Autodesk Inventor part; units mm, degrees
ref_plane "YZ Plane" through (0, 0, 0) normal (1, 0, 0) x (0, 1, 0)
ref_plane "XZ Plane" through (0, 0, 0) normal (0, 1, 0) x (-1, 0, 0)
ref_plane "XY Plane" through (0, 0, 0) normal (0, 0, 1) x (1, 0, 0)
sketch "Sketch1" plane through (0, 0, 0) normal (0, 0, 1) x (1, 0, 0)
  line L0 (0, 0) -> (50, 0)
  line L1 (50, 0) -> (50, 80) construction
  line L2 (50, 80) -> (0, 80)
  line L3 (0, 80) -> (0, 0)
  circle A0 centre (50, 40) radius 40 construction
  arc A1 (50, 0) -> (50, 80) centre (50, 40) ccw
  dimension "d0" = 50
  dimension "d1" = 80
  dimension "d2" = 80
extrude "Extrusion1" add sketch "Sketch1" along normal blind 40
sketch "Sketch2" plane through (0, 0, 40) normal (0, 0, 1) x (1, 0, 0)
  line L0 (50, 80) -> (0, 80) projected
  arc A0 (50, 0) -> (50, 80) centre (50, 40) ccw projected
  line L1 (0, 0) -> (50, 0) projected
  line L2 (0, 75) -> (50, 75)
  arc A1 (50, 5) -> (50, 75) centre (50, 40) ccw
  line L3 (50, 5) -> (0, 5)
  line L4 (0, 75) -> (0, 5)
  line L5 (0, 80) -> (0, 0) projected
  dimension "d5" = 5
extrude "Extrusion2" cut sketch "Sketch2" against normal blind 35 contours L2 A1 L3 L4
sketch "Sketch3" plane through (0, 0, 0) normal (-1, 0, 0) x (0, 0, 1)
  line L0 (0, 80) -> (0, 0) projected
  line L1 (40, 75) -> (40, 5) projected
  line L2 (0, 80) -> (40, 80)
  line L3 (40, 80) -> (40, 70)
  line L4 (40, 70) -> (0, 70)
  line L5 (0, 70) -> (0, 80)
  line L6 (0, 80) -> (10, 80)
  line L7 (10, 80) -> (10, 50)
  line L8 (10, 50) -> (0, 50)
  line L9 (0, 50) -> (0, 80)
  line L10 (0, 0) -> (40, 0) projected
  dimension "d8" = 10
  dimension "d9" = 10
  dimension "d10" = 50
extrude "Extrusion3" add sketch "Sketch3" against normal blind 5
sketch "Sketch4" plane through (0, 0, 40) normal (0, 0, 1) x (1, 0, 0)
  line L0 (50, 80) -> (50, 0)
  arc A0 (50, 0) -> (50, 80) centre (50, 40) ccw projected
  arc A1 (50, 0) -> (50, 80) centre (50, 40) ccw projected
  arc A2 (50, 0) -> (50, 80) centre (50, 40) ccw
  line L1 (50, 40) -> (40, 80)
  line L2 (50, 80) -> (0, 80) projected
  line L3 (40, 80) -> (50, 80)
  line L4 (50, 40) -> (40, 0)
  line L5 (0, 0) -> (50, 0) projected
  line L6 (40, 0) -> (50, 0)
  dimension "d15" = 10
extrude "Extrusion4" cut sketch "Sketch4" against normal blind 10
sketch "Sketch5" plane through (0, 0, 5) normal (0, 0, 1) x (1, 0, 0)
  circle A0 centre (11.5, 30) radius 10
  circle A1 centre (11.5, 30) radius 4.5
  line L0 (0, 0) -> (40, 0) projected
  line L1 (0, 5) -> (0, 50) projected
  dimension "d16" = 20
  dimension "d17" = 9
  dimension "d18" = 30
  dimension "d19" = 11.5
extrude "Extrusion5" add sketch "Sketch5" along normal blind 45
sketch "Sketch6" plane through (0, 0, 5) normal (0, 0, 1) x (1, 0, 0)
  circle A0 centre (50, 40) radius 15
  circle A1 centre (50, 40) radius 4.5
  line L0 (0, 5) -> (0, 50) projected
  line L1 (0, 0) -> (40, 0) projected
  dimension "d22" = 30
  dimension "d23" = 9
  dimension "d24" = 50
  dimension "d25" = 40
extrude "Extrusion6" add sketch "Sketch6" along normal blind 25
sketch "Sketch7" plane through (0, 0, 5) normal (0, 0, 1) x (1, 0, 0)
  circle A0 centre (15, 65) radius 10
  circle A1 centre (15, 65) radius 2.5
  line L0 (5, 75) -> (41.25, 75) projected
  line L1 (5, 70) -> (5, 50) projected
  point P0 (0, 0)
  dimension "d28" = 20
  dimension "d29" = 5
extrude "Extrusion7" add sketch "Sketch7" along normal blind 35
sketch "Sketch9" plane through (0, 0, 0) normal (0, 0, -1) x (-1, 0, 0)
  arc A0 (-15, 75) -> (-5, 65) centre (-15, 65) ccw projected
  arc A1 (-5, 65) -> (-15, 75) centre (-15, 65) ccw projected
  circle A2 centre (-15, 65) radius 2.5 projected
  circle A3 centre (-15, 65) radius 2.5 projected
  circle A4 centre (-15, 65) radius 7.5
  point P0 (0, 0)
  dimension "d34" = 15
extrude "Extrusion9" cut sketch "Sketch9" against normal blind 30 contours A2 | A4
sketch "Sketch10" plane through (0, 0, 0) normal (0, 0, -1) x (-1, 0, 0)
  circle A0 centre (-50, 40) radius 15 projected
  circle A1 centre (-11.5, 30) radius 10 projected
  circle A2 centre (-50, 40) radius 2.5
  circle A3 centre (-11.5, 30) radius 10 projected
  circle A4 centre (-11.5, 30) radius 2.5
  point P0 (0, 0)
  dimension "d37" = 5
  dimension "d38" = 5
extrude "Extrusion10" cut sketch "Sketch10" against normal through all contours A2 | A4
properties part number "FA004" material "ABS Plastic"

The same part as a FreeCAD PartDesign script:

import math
import FreeCAD as App
import Part
import Sketcher
Q = App.Units.Quantity

doc = App.newDocument("Part")
body = doc.addObject("PartDesign::Body", "Body")

# Sketch on XY plane
sketch1 = body.newObject("Sketcher::SketchObject", "Sketch")
sketch1.AttachmentSupport = (doc.getObject("XY_Plane"), [""])
sketch1.MapMode = "FlatFace"
sketch1.addGeometry([
    Part.LineSegment(App.Vector(0, 80, 0), App.Vector(0, 0, 0)),
    Part.LineSegment(App.Vector(0, 0, 0), App.Vector(50, 0, 0)),
    Part.ArcOfCircle(Part.Circle(App.Vector(50, 40, 0), App.Vector(0, 0, 1), 40), math.radians(-90), math.radians(90)),
    Part.LineSegment(App.Vector(50, 80, 0), App.Vector(0, 80, 0)),
], False)
sketch1.addConstraint([
    Sketcher.Constraint("Coincident", 0, 2, 1, 1),
    Sketcher.Constraint("Tangent", 1, 2, 2, 1),
    Sketcher.Constraint("Tangent", 2, 2, 3, 1),
    Sketcher.Constraint("Coincident", 3, 2, 0, 1),
    Sketcher.Constraint("Vertical", 0),
    Sketcher.Constraint("Horizontal", 1),
    Sketcher.Constraint("Horizontal", 3),
    Sketcher.Constraint("Coincident", 0, 2, -1, 1),
    Sketcher.Constraint("Radius", 2, Q("40 mm")),
    Sketcher.Constraint("DistanceX", 1, 1, 1, 2, Q("50 mm")),
])
pad1 = body.newObject("PartDesign::Pad", "Pad")
pad1.Profile = sketch1
pad1.Length = 40

# Sketch on XY plane
sketch2 = body.newObject("Sketcher::SketchObject", "Sketch001")
sketch2.AttachmentSupport = (doc.getObject("XY_Plane"), [""])
sketch2.MapMode = "FlatFace"
sketch2.AttachmentOffset = App.Placement(App.Vector(0, 0, 40), App.Rotation())
sketch2.addGeometry([
    Part.LineSegment(App.Vector(50, 75, 0), App.Vector(0, 75, 0)),
    Part.LineSegment(App.Vector(0, 75, 0), App.Vector(0, 5, 0)),
    Part.LineSegment(App.Vector(0, 5, 0), App.Vector(50, 5, 0)),
    Part.ArcOfCircle(Part.Circle(App.Vector(50, 40, 0), App.Vector(0, 0, 1), 35), math.radians(-90), math.radians(90)),
], False)
sketch2.addConstraint([
    Sketcher.Constraint("Coincident", 0, 2, 1, 1),
    Sketcher.Constraint("Coincident", 1, 2, 2, 1),
    Sketcher.Constraint("Tangent", 2, 2, 3, 1),
    Sketcher.Constraint("Tangent", 3, 2, 0, 1),
    Sketcher.Constraint("Horizontal", 0),
    Sketcher.Constraint("Vertical", 1),
    Sketcher.Constraint("Horizontal", 2),
    Sketcher.Constraint("PointOnObject", 0, 2, -2),
    Sketcher.Constraint("DistanceY", -1, 1, 1, 2, Q("5 mm")),
    Sketcher.Constraint("Radius", 3, Q("35 mm")),
    Sketcher.Constraint("DistanceX", 0, 2, 0, 1, Q("50 mm")),
])
pocket1 = body.newObject("PartDesign::Pocket", "Pocket")
pocket1.Profile = sketch2
pocket1.Length = 35

# Sketch on YZ plane
sketch3 = body.newObject("Sketcher::SketchObject", "Sketch002")
sketch3.AttachmentSupport = (doc.getObject("YZ_Plane"), [""])
sketch3.MapMode = "FlatFace"
sketch3.addGeometry([
    Part.LineSegment(App.Vector(80, 0, 0), App.Vector(50, 0, 0)),  # 0
    Part.LineSegment(App.Vector(50, 0, 0), App.Vector(50, 10, 0)),  # 1
    Part.LineSegment(App.Vector(50, 10, 0), App.Vector(70, 10, 0)),  # 2
    Part.LineSegment(App.Vector(70, 10, 0), App.Vector(70, 40, 0)),  # 3
    Part.LineSegment(App.Vector(70, 40, 0), App.Vector(80, 40, 0)),  # 4
    Part.LineSegment(App.Vector(80, 40, 0), App.Vector(80, 0, 0)),  # 5
], False)
sketch3.addConstraint([
    Sketcher.Constraint("Coincident", 0, 2, 1, 1),
    Sketcher.Constraint("Coincident", 1, 2, 2, 1),
    Sketcher.Constraint("Coincident", 2, 2, 3, 1),
    Sketcher.Constraint("Coincident", 3, 2, 4, 1),
    Sketcher.Constraint("Coincident", 4, 2, 5, 1),
    Sketcher.Constraint("Coincident", 5, 2, 0, 1),
    Sketcher.Constraint("Horizontal", 0),
    Sketcher.Constraint("Vertical", 1),
    Sketcher.Constraint("Horizontal", 2),
    Sketcher.Constraint("Vertical", 3),
    Sketcher.Constraint("Horizontal", 4),
    Sketcher.Constraint("Vertical", 5),
    Sketcher.Constraint("PointOnObject", 0, 2, -1),
    Sketcher.Constraint("Equal", 4, 1),
    Sketcher.Constraint("Equal", 0, 3),
    Sketcher.Constraint("DistanceX", 4, 1, 4, 2, Q("10 mm")),
    Sketcher.Constraint("DistanceX", -1, 1, 0, 2, Q("50 mm")),
    Sketcher.Constraint("DistanceX", 0, 2, 0, 1, Q("30 mm")),
])
pad2 = body.newObject("PartDesign::Pad", "Pad001")
pad2.Profile = sketch3
pad2.Length = 5

# Sketch on XY plane
sketch4 = body.newObject("Sketcher::SketchObject", "Sketch003")
sketch4.AttachmentSupport = (doc.getObject("XY_Plane"), [""])
sketch4.MapMode = "FlatFace"
sketch4.AttachmentOffset = App.Placement(App.Vector(0, 0, 40), App.Rotation())
sketch4.addGeometry([
    Part.ArcOfCircle(Part.Circle(App.Vector(50, 40, 0), App.Vector(0, 0, 1), 40), math.radians(-90), math.radians(90)),  # 0
    Part.LineSegment(App.Vector(50, 80, 0), App.Vector(40, 80, 0)),  # 1
    Part.LineSegment(App.Vector(40, 80, 0), App.Vector(50, 40, 0)),  # 2
    Part.LineSegment(App.Vector(50, 40, 0), App.Vector(40, 0, 0)),  # 3
    Part.LineSegment(App.Vector(40, 0, 0), App.Vector(50, 0, 0)),  # 4
], False)
sketch4.addConstraint([
    Sketcher.Constraint("Tangent", 0, 2, 1, 1),
    Sketcher.Constraint("Coincident", 1, 2, 2, 1),
    Sketcher.Constraint("Coincident", 2, 2, 3, 1),
    Sketcher.Constraint("Coincident", 3, 2, 4, 1),
    Sketcher.Constraint("Tangent", 4, 2, 0, 1),
    Sketcher.Constraint("Horizontal", 1),
    Sketcher.Constraint("Horizontal", 4),
    Sketcher.Constraint("Coincident", 2, 2, 0, 3),
    Sketcher.Constraint("PointOnObject", 3, 2, -1),
    Sketcher.Constraint("Vertical", 1, 2, 3, 2),
    Sketcher.Constraint("DistanceX", 1, 2, 1, 1, Q("10 mm")),
    Sketcher.Constraint("Radius", 0, Q("40 mm")),
    Sketcher.Constraint("DistanceX", -1, 1, 0, 3, Q("50 mm")),
])
pocket2 = body.newObject("PartDesign::Pocket", "Pocket001")
pocket2.Profile = sketch4
pocket2.Length = 10

# Sketch on XY plane
sketch5 = body.newObject("Sketcher::SketchObject", "Sketch004")
sketch5.AttachmentSupport = (doc.getObject("XY_Plane"), [""])
sketch5.MapMode = "FlatFace"
sketch5.AttachmentOffset = App.Placement(App.Vector(0, 0, 5), App.Rotation())
sketch5.addGeometry([
    Part.Circle(App.Vector(11.5, 30, 0), App.Vector(0, 0, 1), 10),
    Part.Circle(App.Vector(11.5, 30, 0), App.Vector(0, 0, 1), 4.5),
], False)
sketch5.addConstraint([
    Sketcher.Constraint("Coincident", 1, 3, 0, 3),
    Sketcher.Constraint("Diameter", 0, Q("20 mm")),
    Sketcher.Constraint("Diameter", 1, Q("9 mm")),
    Sketcher.Constraint("DistanceY", -1, 1, 0, 3, Q("30 mm")),
    Sketcher.Constraint("DistanceX", -1, 1, 0, 3, Q("11.5 mm")),
])
pad3 = body.newObject("PartDesign::Pad", "Pad002")
pad3.Profile = sketch5
pad3.Length = 45

# Sketch on XY plane
sketch6 = body.newObject("Sketcher::SketchObject", "Sketch005")
sketch6.AttachmentSupport = (doc.getObject("XY_Plane"), [""])
sketch6.MapMode = "FlatFace"
sketch6.AttachmentOffset = App.Placement(App.Vector(0, 0, 5), App.Rotation())
sketch6.addGeometry([
    Part.Circle(App.Vector(50, 40, 0), App.Vector(0, 0, 1), 15),
    Part.Circle(App.Vector(50, 40, 0), App.Vector(0, 0, 1), 4.5),
], False)
sketch6.addConstraint([
    Sketcher.Constraint("Coincident", 1, 3, 0, 3),
    Sketcher.Constraint("Diameter", 0, Q("30 mm")),
    Sketcher.Constraint("Diameter", 1, Q("9 mm")),
    Sketcher.Constraint("DistanceX", -1, 1, 0, 3, Q("50 mm")),
    Sketcher.Constraint("DistanceY", -1, 1, 0, 3, Q("40 mm")),
])
pad4 = body.newObject("PartDesign::Pad", "Pad003")
pad4.Profile = sketch6
pad4.Length = 25

# Sketch on XY plane
sketch7 = body.newObject("Sketcher::SketchObject", "Sketch006")
sketch7.AttachmentSupport = (doc.getObject("XY_Plane"), [""])
sketch7.MapMode = "FlatFace"
sketch7.AttachmentOffset = App.Placement(App.Vector(0, 0, 5), App.Rotation())
sketch7.addGeometry([
    Part.Circle(App.Vector(15, 65, 0), App.Vector(0, 0, 1), 10),
    Part.Circle(App.Vector(15, 65, 0), App.Vector(0, 0, 1), 2.5),
], False)
sketch7.addConstraint([
    Sketcher.Constraint("Coincident", 1, 3, 0, 3),
    Sketcher.Constraint("Diameter", 0, Q("20 mm")),
    Sketcher.Constraint("Diameter", 1, Q("5 mm")),
    Sketcher.Constraint("DistanceX", -1, 1, 0, 3, Q("15 mm")),
    Sketcher.Constraint("DistanceY", -1, 1, 0, 3, Q("65 mm")),
])
pad5 = body.newObject("PartDesign::Pad", "Pad004")
pad5.Profile = sketch7
pad5.Length = 35

# Sketch on XY plane
sketch8 = body.newObject("Sketcher::SketchObject", "Sketch007")
sketch8.AttachmentSupport = (doc.getObject("XY_Plane"), [""])
sketch8.MapMode = "FlatFace"
sketch8.addGeometry(Part.Circle(App.Vector(15, 65, 0), App.Vector(0, 0, 1), 7.5), False)
sketch8.addConstraint([
    Sketcher.Constraint("Diameter", 0, Q("15 mm")),
    Sketcher.Constraint("DistanceX", -1, 1, 0, 3, Q("15 mm")),
    Sketcher.Constraint("DistanceY", -1, 1, 0, 3, Q("65 mm")),
])
pocket3 = body.newObject("PartDesign::Pocket", "Pocket002")
pocket3.Profile = sketch8
pocket3.Length = 30
pocket3.Reversed = True

# Sketch on XY plane
sketch9 = body.newObject("Sketcher::SketchObject", "Sketch008")
sketch9.AttachmentSupport = (doc.getObject("XY_Plane"), [""])
sketch9.MapMode = "FlatFace"
sketch9.addGeometry([
    Part.Circle(App.Vector(50, 40, 0), App.Vector(0, 0, 1), 2.5),
    Part.Circle(App.Vector(11.5, 30, 0), App.Vector(0, 0, 1), 2.5),
], False)
sketch9.addConstraint([
    Sketcher.Constraint("Equal", 0, 1),
    Sketcher.Constraint("Diameter", 0, Q("5 mm")),
    Sketcher.Constraint("DistanceX", -1, 1, 0, 3, Q("50 mm")),
    Sketcher.Constraint("DistanceY", -1, 1, 0, 3, Q("40 mm")),
    Sketcher.Constraint("DistanceY", -1, 1, 1, 3, Q("30 mm")),
    Sketcher.Constraint("DistanceX", -1, 1, 1, 3, Q("11.5 mm")),
])
pocket4 = body.newObject("PartDesign::Pocket", "Pocket003")
pocket4.Profile = sketch9
pocket4.Type = "ThroughAll"
pocket4.Reversed = True

doc.recompute()
